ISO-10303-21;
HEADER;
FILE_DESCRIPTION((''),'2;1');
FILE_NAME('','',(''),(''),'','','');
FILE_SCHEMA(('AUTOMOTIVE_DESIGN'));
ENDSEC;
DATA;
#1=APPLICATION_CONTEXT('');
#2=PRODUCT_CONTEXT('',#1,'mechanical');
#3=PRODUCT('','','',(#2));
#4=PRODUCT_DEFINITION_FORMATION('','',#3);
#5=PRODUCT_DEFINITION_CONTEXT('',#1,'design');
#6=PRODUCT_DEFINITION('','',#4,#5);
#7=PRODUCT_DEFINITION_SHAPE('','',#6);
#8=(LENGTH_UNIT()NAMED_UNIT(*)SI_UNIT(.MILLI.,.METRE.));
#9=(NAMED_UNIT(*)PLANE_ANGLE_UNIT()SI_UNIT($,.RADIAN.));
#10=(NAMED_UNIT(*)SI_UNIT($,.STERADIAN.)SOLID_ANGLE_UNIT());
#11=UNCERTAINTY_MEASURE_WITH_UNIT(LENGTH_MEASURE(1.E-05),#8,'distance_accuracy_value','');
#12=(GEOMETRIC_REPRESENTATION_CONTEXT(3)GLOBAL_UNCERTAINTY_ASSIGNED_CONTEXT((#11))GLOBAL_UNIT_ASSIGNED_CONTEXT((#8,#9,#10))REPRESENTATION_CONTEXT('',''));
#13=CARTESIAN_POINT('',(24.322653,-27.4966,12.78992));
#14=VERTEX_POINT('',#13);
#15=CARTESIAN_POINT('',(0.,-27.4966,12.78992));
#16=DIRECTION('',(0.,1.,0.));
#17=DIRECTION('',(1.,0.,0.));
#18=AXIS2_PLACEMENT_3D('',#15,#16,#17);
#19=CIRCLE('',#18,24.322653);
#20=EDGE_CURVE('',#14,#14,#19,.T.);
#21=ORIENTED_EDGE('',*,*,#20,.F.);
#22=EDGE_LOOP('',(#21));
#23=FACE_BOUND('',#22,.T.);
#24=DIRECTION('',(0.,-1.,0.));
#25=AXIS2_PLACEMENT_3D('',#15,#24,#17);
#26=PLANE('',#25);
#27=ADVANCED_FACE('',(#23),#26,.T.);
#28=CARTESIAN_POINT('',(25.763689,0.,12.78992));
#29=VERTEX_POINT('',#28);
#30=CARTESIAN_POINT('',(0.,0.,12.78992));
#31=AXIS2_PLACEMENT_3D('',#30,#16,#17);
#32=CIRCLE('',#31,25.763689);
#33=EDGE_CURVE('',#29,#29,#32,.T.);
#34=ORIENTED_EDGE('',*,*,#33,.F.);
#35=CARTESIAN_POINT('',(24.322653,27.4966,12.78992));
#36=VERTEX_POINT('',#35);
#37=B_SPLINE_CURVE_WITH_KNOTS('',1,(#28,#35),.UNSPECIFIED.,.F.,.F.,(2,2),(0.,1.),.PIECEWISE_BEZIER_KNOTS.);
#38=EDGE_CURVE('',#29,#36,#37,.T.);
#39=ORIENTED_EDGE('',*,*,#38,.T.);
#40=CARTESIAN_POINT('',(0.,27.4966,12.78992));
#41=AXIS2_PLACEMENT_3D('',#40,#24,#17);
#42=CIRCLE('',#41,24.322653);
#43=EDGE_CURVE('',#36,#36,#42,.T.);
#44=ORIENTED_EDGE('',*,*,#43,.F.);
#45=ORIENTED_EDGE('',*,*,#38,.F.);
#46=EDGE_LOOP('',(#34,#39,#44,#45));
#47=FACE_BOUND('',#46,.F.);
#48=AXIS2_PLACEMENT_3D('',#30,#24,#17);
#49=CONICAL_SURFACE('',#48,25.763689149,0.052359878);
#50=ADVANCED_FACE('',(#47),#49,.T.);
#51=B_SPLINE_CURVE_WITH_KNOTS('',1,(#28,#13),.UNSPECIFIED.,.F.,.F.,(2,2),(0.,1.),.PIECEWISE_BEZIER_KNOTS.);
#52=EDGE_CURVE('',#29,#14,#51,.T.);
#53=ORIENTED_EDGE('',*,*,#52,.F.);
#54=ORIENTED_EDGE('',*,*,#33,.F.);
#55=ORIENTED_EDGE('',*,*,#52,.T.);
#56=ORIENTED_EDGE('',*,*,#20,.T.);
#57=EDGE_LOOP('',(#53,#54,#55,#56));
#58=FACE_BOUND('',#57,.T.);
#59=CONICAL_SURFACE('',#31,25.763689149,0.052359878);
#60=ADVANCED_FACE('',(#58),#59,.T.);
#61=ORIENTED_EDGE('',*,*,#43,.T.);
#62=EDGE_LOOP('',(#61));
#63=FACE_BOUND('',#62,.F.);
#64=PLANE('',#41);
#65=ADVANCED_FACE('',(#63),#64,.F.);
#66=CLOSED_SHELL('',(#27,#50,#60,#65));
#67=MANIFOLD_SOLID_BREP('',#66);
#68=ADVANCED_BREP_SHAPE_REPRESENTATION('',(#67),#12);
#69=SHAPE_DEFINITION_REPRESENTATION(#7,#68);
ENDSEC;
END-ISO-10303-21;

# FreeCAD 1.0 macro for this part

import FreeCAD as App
import Part
import Sketcher
Q = App.Units.Quantity

doc = App.newDocument("Part")
body = doc.addObject("PartDesign::Body", "Body")

# Sketch on XZ plane
sketch1 = body.newObject("Sketcher::SketchObject", "Sketch")
sketch1.AttachmentSupport = (doc.getObject("XZ_Plane"), [""])
sketch1.MapMode = "FlatFace"
sketch1.addGeometry(Part.Circle(App.Vector(0, 12.78992, 0), App.Vector(0, 0, 1), 25.763689), False)
sketch1.addConstraint([
    Sketcher.Constraint("PointOnObject", 0, 3, -2),
    Sketcher.Constraint("Diameter", 0, Q("51.527378 mm")),
    Sketcher.Constraint("DistanceY", -1, 1, 0, 3, Q("12.78992 mm")),
])
pad1 = body.newObject("PartDesign::Pad", "Pad")
pad1.Profile = sketch1
pad1.Length = 54.993199
pad1.Midplane = True
pad1.TaperAngle = -3

doc.recompute()
